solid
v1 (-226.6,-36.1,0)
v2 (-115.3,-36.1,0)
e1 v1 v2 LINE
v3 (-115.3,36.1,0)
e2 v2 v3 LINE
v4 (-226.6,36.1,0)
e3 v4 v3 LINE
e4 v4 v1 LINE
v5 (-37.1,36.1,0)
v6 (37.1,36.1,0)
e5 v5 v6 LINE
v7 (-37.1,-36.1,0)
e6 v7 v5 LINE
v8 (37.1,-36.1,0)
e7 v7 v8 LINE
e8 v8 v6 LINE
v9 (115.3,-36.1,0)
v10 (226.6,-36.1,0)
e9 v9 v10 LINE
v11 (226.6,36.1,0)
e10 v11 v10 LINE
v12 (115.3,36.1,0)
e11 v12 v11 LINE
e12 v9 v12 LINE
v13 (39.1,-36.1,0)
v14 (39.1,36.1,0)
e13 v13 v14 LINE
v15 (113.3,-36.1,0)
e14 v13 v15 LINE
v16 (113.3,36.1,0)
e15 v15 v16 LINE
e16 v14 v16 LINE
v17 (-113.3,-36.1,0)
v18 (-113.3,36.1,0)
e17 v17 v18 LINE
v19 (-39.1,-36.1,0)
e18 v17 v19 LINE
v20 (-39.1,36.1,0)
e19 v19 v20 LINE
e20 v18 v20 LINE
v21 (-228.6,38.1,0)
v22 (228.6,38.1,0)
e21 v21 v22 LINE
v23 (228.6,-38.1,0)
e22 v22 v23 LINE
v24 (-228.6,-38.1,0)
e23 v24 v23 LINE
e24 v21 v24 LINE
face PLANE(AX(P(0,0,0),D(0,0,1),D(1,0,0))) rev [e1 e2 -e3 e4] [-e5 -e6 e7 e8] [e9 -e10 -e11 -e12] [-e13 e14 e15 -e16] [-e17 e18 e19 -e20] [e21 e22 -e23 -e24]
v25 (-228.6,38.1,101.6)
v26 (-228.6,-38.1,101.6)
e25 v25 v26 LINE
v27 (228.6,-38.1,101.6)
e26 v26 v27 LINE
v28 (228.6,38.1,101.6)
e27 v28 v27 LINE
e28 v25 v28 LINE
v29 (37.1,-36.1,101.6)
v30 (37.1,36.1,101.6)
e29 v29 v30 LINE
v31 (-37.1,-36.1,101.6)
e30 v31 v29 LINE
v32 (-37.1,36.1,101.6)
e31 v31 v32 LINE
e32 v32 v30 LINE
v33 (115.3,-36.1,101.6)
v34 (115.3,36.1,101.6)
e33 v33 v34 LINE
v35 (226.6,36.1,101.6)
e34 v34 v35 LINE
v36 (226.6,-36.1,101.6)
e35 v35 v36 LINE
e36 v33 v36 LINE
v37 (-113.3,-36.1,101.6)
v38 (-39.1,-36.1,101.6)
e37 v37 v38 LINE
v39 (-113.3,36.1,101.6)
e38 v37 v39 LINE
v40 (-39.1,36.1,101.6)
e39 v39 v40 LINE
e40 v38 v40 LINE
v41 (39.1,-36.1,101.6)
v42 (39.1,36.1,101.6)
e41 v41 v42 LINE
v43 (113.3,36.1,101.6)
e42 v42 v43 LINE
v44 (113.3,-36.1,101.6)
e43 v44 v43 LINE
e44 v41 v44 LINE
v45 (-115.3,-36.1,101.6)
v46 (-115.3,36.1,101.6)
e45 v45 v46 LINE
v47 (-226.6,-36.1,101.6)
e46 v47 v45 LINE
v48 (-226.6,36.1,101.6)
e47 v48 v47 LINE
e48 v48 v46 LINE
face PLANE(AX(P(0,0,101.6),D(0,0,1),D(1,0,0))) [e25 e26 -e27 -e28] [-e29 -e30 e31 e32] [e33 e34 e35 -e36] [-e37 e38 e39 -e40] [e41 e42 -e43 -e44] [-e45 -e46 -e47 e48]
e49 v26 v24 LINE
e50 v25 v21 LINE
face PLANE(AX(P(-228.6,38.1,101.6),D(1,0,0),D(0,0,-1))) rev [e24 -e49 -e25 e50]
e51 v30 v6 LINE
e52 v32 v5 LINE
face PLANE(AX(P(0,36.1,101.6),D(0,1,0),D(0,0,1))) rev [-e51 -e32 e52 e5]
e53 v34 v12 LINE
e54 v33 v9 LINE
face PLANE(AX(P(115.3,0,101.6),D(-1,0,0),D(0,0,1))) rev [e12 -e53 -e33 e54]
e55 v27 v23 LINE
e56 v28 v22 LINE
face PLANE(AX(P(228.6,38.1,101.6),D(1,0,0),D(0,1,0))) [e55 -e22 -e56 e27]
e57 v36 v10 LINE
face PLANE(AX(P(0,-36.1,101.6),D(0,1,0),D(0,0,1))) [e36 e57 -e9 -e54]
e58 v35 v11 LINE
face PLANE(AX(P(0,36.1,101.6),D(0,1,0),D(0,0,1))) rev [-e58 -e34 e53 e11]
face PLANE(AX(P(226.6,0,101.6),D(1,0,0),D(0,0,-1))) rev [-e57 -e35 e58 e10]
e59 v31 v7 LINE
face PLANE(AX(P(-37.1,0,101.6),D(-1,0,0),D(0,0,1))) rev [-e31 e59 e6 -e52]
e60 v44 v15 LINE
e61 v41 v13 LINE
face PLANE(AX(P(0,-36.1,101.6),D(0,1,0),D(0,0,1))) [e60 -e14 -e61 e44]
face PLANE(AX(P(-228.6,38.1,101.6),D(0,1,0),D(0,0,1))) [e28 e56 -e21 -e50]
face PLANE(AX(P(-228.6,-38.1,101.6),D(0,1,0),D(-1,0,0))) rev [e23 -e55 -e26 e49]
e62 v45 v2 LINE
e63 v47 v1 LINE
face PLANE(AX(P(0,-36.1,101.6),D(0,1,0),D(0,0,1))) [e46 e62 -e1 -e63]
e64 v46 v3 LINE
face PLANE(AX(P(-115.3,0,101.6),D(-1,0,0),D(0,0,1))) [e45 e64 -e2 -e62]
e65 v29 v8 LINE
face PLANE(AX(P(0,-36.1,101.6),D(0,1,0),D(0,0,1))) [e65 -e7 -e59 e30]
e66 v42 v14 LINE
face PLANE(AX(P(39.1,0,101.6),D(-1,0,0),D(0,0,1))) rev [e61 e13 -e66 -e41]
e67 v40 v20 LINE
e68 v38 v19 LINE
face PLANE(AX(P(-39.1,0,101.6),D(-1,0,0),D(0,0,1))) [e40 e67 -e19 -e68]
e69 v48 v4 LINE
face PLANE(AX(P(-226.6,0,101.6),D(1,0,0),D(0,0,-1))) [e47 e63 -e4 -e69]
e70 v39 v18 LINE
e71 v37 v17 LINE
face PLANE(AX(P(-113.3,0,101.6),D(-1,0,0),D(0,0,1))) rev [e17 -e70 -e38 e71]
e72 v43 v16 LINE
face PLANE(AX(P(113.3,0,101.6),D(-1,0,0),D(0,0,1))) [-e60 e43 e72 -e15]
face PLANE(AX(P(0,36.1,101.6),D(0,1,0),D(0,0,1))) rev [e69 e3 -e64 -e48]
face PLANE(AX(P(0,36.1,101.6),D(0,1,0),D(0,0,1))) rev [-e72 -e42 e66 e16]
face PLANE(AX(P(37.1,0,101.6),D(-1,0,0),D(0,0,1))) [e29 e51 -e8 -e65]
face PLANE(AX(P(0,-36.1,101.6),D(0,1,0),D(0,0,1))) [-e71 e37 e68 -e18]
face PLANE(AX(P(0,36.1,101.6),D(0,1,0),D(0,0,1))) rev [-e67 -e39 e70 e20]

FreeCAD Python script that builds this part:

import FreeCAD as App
import Part
import Sketcher
from FreeCAD import Vector


def add_polygon(sketch, points):
    """Adds a closed chain of lines whose ends are joined by coincident constraints."""
    first, n = sketch.GeometryCount, len(points)
    for a, b in zip(points, points[1:] + points[:1]):
        sketch.addGeometry(Part.LineSegment(App.Vector(*a, 0), App.Vector(*b, 0)), False)
    for i in range(n):
        sketch.addConstraint(Sketcher.Constraint("Coincident", first + i, 2, first + (i + 1) % n, 1))

doc = App.newDocument("Part")
body = doc.addObject("PartDesign::Body", "Body")

# Sketch on XY plane
sketch1 = body.newObject("Sketcher::SketchObject", "Sketch")
sketch1.AttachmentSupport = (doc.getObject("XY_Plane"), [""])
sketch1.MapMode = "FlatFace"
add_polygon(sketch1, [(-228.6, 38.1), (-228.6, -38.1), (228.6, -38.1), (228.6, 38.1)])  # lines 0-3
sketch1.addConstraint([
    Sketcher.Constraint("Vertical", 0),
    Sketcher.Constraint("Horizontal", 1),
    Sketcher.Constraint("Vertical", 2),
    Sketcher.Constraint("Horizontal", 3),
    Sketcher.Constraint("Symmetric", 0, 2, 2, 2, -1, 1),
    Sketcher.Constraint("DistanceX", 1, 1, 1, 2, 457.2),
    Sketcher.Constraint("DistanceY", 0, 2, 0, 1, 76.2),
])
pad1 = body.newObject("PartDesign::Pad", "Pad")
pad1.Profile = sketch1
pad1.Length = 101.6

# Sketch on XY plane
sketch2 = body.newObject("Sketcher::SketchObject", "Sketch001")
sketch2.AttachmentSupport = (doc.getObject("XY_Plane"), [""])
sketch2.MapMode = "FlatFace"
add_polygon(sketch2, [(-226.6, 36.1), (-226.6, -36.1), (-115.3, -36.1), (-115.3, 36.1)])  # lines 0-3
add_polygon(sketch2, [(-113.3, 36.1), (-113.3, -36.1), (-39.1, -36.1), (-39.1, 36.1)])  # lines 4-7
add_polygon(sketch2, [(-37.1, 36.1), (-37.1, -36.1), (37.1, -36.1), (37.1, 36.1)])  # lines 8-11
add_polygon(sketch2, [(39.1, 36.1), (39.1, -36.1), (113.3, -36.1), (113.3, 36.1)])  # lines 12-15
add_polygon(sketch2, [(115.3, 36.1), (115.3, -36.1), (226.6, -36.1), (226.6, 36.1)])  # lines 16-19
sketch2.addConstraint([
    Sketcher.Constraint("Vertical", 0),
    Sketcher.Constraint("Horizontal", 1),
    Sketcher.Constraint("Vertical", 2),
    Sketcher.Constraint("Horizontal", 3),
    Sketcher.Constraint("Vertical", 4),
    Sketcher.Constraint("Horizontal", 5),
    Sketcher.Constraint("Vertical", 6),
    Sketcher.Constraint("Horizontal", 7),
    Sketcher.Constraint("Vertical", 8),
    Sketcher.Constraint("Horizontal", 9),
    Sketcher.Constraint("Vertical", 10),
    Sketcher.Constraint("Horizontal", 11),
    Sketcher.Constraint("Vertical", 12),
    Sketcher.Constraint("Horizontal", 13),
    Sketcher.Constraint("Vertical", 14),
    Sketcher.Constraint("Horizontal", 15),
    Sketcher.Constraint("Vertical", 16),
    Sketcher.Constraint("Horizontal", 17),
    Sketcher.Constraint("Vertical", 18),
    Sketcher.Constraint("Horizontal", 19),
    Sketcher.Constraint("Symmetric", 8, 2, 10, 2, -1, 1),
    Sketcher.Constraint("Symmetric", 6, 2, 12, 2, -1, 1),
    Sketcher.Constraint("Symmetric", 4, 2, 14, 2, -1, 1),
    Sketcher.Constraint("Symmetric", 2, 2, 16, 2, -1, 1),
    Sketcher.Constraint("Symmetric", 0, 2, 18, 2, -1, 1),
    Sketcher.Constraint("Horizontal", 1, 2, 4, 2),
    Sketcher.Constraint("Horizontal", 3, 2, 6, 2),
    Sketcher.Constraint("Horizontal", 5, 2, 8, 2),
    Sketcher.Constraint("Horizontal", 7, 2, 10, 2),
    Sketcher.Constraint("Equal", 7, 9),
    Sketcher.Constraint("DistanceX", 1, 1, 1, 2, 111.3),
    Sketcher.Constraint("DistanceX", 5, 1, 5, 2, 74.2),
    Sketcher.Constraint("DistanceY", 0, 2, 0, 1, 72.2),
    Sketcher.Constraint("DistanceX", 1, 2, 4, 2, 2.0),
    Sketcher.Constraint("DistanceX", 5, 2, 8, 2, 2.0),
])
pocket1 = body.newObject("PartDesign::Pocket", "Pocket")
pocket1.Profile = sketch2
pocket1.Type = "ThroughAll"
pocket1.Reversed = True

doc.recompute()
